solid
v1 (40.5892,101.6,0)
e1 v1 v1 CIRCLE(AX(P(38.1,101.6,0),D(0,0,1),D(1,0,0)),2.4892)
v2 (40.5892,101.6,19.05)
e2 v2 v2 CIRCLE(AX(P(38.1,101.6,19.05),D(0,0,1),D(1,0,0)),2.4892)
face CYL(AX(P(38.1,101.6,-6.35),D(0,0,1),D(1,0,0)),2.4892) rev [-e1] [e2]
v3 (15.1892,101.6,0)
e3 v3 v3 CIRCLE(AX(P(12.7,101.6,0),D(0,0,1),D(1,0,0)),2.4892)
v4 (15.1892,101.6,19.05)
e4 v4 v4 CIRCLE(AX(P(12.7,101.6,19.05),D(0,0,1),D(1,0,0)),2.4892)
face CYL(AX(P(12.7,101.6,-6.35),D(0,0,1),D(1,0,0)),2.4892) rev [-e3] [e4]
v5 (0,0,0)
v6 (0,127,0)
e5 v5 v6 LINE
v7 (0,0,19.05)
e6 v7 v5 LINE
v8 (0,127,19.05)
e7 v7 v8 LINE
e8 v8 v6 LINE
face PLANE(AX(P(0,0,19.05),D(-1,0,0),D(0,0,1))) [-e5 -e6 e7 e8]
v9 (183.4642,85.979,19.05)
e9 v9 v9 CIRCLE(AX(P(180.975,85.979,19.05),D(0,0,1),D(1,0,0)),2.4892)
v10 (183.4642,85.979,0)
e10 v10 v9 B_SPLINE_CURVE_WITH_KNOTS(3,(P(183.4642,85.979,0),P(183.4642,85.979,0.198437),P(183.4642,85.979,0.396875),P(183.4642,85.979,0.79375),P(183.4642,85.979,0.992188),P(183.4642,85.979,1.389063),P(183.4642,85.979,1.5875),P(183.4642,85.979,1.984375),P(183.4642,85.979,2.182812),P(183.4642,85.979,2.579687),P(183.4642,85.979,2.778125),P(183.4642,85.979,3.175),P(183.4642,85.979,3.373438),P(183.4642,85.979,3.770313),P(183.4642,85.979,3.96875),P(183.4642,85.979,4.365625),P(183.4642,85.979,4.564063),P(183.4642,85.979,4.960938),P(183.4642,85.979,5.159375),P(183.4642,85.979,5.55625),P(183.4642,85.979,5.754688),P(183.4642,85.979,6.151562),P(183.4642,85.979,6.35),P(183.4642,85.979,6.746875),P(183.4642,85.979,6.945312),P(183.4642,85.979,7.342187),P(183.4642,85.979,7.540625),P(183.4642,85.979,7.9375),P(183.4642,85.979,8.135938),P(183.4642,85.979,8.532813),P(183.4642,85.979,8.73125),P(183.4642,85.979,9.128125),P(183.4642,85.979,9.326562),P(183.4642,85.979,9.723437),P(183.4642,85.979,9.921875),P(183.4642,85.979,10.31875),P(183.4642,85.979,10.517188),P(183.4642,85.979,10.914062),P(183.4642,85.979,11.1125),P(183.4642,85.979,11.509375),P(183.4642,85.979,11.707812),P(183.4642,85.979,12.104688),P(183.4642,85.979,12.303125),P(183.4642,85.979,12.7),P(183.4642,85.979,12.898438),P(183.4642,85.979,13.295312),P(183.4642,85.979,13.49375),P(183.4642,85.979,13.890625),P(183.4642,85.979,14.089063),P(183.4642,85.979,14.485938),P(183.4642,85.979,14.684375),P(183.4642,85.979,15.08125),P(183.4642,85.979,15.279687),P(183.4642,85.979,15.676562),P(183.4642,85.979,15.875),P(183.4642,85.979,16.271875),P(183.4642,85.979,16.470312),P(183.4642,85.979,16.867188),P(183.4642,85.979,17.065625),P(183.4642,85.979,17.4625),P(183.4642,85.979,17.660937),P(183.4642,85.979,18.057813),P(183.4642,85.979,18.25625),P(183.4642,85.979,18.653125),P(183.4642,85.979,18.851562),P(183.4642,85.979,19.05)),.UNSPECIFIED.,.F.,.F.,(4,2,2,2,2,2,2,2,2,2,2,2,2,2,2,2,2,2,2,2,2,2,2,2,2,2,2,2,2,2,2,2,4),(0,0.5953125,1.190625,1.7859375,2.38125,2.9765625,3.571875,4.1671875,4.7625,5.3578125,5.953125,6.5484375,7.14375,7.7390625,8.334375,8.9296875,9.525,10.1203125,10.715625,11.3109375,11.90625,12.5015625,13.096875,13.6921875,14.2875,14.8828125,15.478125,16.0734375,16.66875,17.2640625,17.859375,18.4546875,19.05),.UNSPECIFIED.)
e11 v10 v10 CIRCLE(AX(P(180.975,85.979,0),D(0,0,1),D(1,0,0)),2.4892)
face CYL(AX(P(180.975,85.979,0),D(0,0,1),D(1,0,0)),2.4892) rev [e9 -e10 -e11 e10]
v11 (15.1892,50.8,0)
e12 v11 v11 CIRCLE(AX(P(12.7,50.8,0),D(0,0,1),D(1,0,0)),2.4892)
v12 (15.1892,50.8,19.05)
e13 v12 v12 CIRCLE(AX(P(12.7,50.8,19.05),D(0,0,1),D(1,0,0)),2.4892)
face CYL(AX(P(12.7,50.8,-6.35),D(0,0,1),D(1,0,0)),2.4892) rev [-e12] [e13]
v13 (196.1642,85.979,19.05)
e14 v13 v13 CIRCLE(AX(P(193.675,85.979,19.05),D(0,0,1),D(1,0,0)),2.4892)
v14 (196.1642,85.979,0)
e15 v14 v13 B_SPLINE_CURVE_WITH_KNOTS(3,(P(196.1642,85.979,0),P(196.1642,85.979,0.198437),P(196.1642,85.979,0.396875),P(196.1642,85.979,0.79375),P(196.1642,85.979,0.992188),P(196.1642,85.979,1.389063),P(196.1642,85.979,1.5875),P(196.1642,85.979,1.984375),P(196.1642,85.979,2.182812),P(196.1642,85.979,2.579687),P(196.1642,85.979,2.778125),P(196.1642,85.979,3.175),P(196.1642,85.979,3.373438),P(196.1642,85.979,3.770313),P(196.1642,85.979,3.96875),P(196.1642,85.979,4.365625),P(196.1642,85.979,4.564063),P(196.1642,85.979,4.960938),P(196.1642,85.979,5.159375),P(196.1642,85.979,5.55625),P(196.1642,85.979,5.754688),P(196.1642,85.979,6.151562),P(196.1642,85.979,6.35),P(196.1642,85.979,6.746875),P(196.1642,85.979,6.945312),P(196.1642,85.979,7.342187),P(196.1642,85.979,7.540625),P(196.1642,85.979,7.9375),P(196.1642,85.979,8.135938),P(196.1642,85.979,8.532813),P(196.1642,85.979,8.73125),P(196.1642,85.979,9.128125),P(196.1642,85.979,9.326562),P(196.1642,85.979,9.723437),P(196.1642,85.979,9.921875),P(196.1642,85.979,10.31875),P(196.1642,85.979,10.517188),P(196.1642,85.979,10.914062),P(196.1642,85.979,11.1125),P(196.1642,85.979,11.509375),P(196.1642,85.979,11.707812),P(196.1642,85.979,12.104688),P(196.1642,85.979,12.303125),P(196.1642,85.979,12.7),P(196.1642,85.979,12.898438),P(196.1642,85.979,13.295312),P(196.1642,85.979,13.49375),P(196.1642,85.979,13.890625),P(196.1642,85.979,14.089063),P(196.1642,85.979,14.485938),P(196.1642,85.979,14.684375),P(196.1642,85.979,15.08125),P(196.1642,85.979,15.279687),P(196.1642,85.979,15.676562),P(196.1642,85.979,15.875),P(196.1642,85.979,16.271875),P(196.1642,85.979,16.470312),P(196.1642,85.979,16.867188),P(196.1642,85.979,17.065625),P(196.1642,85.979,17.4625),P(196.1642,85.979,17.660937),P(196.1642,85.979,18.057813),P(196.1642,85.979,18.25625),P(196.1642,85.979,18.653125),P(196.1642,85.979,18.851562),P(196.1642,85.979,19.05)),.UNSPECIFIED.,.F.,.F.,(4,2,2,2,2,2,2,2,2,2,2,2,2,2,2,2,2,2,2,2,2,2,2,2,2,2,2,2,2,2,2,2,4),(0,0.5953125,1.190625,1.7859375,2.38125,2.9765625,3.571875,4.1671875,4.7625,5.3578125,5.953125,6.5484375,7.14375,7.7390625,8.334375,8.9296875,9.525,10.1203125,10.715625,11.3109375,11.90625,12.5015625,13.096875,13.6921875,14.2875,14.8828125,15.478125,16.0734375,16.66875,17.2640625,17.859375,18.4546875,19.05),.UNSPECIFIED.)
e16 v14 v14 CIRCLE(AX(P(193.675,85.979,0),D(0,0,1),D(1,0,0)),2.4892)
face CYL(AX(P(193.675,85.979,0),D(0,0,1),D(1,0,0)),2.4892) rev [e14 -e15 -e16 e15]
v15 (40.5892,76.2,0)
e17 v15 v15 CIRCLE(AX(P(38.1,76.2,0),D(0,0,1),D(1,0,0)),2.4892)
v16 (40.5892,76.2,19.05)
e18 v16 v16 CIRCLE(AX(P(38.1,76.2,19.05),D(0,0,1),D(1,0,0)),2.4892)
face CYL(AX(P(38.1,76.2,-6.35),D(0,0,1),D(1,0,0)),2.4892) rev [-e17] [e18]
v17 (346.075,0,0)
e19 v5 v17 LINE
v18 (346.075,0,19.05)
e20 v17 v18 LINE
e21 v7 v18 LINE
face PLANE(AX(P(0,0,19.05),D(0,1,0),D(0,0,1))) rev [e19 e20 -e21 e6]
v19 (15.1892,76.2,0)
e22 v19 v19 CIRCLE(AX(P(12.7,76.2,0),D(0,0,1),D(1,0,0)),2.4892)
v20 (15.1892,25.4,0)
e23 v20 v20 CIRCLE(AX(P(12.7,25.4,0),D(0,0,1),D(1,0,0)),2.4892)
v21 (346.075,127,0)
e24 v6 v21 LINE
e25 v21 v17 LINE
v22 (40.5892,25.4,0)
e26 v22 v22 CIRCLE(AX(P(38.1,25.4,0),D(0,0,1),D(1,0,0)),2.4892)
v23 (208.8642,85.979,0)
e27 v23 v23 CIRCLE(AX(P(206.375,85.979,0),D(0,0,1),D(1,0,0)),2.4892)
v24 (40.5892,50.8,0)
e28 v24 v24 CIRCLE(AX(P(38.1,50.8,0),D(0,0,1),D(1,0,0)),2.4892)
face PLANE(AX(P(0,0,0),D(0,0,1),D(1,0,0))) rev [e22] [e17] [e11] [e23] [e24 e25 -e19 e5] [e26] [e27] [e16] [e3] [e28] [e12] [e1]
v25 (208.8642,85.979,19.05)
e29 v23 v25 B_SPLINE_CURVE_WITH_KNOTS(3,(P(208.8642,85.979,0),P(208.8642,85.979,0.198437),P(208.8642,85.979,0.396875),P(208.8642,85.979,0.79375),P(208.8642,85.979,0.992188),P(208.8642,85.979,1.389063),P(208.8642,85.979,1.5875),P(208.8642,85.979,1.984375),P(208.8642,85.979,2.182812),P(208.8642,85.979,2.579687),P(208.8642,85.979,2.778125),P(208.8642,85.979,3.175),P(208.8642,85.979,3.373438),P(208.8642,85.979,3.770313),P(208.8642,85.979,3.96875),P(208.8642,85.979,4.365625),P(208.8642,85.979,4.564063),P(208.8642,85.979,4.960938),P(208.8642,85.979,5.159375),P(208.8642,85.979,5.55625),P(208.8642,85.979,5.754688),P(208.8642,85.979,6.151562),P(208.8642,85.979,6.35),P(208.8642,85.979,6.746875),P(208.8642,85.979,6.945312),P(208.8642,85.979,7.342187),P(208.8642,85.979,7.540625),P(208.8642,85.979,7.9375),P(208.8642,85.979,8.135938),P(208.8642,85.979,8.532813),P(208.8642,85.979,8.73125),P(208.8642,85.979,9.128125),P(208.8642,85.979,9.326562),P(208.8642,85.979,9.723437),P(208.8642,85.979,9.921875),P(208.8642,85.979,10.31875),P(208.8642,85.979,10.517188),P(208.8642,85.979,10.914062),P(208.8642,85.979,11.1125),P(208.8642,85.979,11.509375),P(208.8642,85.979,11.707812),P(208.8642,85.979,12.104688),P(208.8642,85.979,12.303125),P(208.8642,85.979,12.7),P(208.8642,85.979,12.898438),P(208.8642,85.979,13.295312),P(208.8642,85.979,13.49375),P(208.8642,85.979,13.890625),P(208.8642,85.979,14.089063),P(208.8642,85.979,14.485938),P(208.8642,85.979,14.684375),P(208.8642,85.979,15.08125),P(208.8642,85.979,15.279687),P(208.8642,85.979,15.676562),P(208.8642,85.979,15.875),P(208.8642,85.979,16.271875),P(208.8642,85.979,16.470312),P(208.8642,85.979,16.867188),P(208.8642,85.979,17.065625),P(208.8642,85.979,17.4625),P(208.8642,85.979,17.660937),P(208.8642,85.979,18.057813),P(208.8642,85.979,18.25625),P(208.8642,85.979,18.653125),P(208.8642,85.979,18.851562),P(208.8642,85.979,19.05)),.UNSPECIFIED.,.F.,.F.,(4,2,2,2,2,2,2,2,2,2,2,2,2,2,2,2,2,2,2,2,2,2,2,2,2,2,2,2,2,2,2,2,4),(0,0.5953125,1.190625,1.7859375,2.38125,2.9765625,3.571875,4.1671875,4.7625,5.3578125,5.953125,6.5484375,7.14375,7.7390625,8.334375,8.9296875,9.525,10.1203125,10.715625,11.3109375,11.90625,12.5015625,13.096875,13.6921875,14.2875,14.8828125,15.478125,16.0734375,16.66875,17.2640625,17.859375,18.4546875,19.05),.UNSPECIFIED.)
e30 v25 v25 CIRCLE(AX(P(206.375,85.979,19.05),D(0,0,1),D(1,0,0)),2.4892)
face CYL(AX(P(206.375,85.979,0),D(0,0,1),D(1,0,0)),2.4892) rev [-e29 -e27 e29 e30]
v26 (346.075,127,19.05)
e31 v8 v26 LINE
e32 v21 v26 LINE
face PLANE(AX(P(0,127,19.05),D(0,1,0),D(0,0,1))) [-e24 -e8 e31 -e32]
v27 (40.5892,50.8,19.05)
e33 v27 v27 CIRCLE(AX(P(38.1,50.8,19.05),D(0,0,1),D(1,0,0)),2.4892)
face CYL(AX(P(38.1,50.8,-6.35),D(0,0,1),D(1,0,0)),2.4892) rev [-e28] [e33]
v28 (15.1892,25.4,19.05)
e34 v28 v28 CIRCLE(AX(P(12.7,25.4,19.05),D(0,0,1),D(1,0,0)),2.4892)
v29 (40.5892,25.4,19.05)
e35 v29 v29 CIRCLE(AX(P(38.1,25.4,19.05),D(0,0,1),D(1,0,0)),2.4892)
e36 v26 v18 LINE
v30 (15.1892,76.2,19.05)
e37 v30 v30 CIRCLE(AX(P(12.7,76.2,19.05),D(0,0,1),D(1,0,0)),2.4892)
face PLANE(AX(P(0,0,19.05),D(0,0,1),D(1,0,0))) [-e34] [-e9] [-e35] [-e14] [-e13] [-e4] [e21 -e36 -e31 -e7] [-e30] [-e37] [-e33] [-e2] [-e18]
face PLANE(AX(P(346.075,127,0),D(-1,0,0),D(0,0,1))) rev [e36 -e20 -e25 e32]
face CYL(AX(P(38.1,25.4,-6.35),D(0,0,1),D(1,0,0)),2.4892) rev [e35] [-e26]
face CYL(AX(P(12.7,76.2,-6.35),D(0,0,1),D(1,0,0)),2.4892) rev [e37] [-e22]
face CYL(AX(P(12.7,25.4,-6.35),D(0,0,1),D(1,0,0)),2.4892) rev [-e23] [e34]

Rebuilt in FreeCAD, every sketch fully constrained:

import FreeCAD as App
import Part
import Sketcher
from FreeCAD import Vector
Q = App.Units.Quantity


def add_polygon(sketch, points):
    """Adds a closed chain of lines whose ends are joined by coincident constraints."""
    first, n = sketch.GeometryCount, len(points)
    for a, b in zip(points, points[1:] + points[:1]):
        sketch.addGeometry(Part.LineSegment(App.Vector(*a, 0), App.Vector(*b, 0)), False)
    for i in range(n):
        sketch.addConstraint(Sketcher.Constraint("Coincident", first + i, 2, first + (i + 1) % n, 1))

doc = App.newDocument("Part")
params = doc.addObject("Spreadsheet::Sheet", "Params")
for row, (alias, value) in enumerate([
    ("sketch1_height", "5 in"),
    ("sketch1_width", "28.25 in"),
    ("pad1_length", "0.75 in"),
    ("sketch2_diameter", "0.196 in"),
    ("pocket1_length", "1 in"),
    ("sketch3_diameter", "0.196 in"),
    ("sketch4_height", "5 in"),
    ("sketch4_width", "14.625 in"),
], start=1):
    params.set(f"A{row}", alias)
    params.set(f"B{row}", "=" + value)
    params.setAlias(f"B{row}", alias)

body = doc.addObject("PartDesign::Body", "Body")

sketch1 = doc.addObject("Sketcher::SketchObject", "Sketch")
body.addObject(sketch1)
sketch1.AttachmentSupport = (doc.XY_Plane, [""])
sketch1.MapMode = "FlatFace"
add_polygon(sketch1, [(0, 127), (0, 0), (718, 0), (718, 127)])
sketch1.addConstraint([
    Sketcher.Constraint("Vertical", 0),
    Sketcher.Constraint("Horizontal", 1),
    Sketcher.Constraint("Vertical", 2),
    Sketcher.Constraint("Horizontal", 3),
    Sketcher.Constraint("Coincident", 0, 2, -1, 1),
    Sketcher.Constraint("DistanceY", 0, 2, 0, 1, Q("5 in")),
    Sketcher.Constraint("DistanceX", 1, 1, 1, 2, Q("28.25 in")),
])
sketch1.setExpression("Constraints[9]", "Params.sketch1_height")
sketch1.setExpression("Constraints[10]", "Params.sketch1_width")
pad1 = doc.addObject("PartDesign::Pad", "Pad")
body.addObject(pad1)
pad1.Profile = sketch1
pad1.setExpression("Length", "Params.pad1_length")

sketch2 = doc.addObject("Sketcher::SketchObject", "Sketch001")
body.addObject(sketch2)
sketch2.AttachmentSupport = (doc.XY_Plane, [""])
sketch2.MapMode = "FlatFace"
sketch2.AttachmentOffset = App.Placement(Vector(0, 0, 0.75 * 25.4), App.Rotation())
sketch2.addGeometry([
    Part.Circle(Vector(12.7, 101.6, 0), Vector(0, 0, 1), 2.5),
    Part.Circle(Vector(38.1, 101.6, 0), Vector(0, 0, 1), 2.5),
    Part.Circle(Vector(38.1, 76.2, 0), Vector(0, 0, 1), 2.5),
    Part.Circle(Vector(38.1, 50.8, 0), Vector(0, 0, 1), 2.5),
    Part.Circle(Vector(38.1, 25.4, 0), Vector(0, 0, 1), 2.5),
    Part.Circle(Vector(12.7, 76.2, 0), Vector(0, 0, 1), 2.5),
    Part.Circle(Vector(12.7, 50.8, 0), Vector(0, 0, 1), 2.5),
    Part.Circle(Vector(12.7, 25.4, 0), Vector(0, 0, 1), 2.5),
    Part.Circle(Vector(685.8, 101.6, 0), Vector(0, 0, 1), 2.5),
    Part.Circle(Vector(660.4, 101.6, 0), Vector(0, 0, 1), 2.5),
    Part.Circle(Vector(660.4, 76.2, 0), Vector(0, 0, 1), 2.5),
    Part.Circle(Vector(660.4, 50.8, 0), Vector(0, 0, 1), 2.5),
    Part.Circle(Vector(660.4, 25.4, 0), Vector(0, 0, 1), 2.5),
    Part.Circle(Vector(685.8, 76.2, 0), Vector(0, 0, 1), 2.5),
    Part.Circle(Vector(685.8, 50.8, 0), Vector(0, 0, 1), 2.5),
    Part.Circle(Vector(685.8, 25.4, 0), Vector(0, 0, 1), 2.5),
], False)
sketch2.addConstraint([
    Sketcher.Constraint("Equal", 0, 1),
    Sketcher.Constraint("Equal", 1, 2),
    Sketcher.Constraint("Equal", 2, 3),
    Sketcher.Constraint("Equal", 3, 4),
    Sketcher.Constraint("Equal", 4, 5),
    Sketcher.Constraint("Equal", 5, 6),
    Sketcher.Constraint("Equal", 6, 7),
    Sketcher.Constraint("Equal", 7, 8),
    Sketcher.Constraint("Equal", 8, 9),
    Sketcher.Constraint("Equal", 9, 10),
    Sketcher.Constraint("Equal", 10, 11),
    Sketcher.Constraint("Equal", 11, 12),
    Sketcher.Constraint("Equal", 12, 13),
    Sketcher.Constraint("Equal", 13, 14),
    Sketcher.Constraint("Equal", 14, 15),
    Sketcher.Constraint("Horizontal", 0, 3, 1, 3),
    Sketcher.Constraint("Horizontal", 2, 3, 5, 3),
    Sketcher.Constraint("Horizontal", 3, 3, 6, 3),
    Sketcher.Constraint("Horizontal", 4, 3, 7, 3),
    Sketcher.Constraint("Horizontal", 1, 3, 8, 3),
    Sketcher.Constraint("Horizontal", 8, 3, 9, 3),
    Sketcher.Constraint("Horizontal", 5, 3, 10, 3),
    Sketcher.Constraint("Horizontal", 6, 3, 11, 3),
    Sketcher.Constraint("Horizontal", 7, 3, 12, 3),
    Sketcher.Constraint("Horizontal", 10, 3, 13, 3),
    Sketcher.Constraint("Horizontal", 11, 3, 14, 3),
    Sketcher.Constraint("Horizontal", 12, 3, 15, 3),
    Sketcher.Constraint("Vertical", 1, 3, 2, 3),
    Sketcher.Constraint("Vertical", 2, 3, 3, 3),
    Sketcher.Constraint("Vertical", 3, 3, 4, 3),
    Sketcher.Constraint("Vertical", 0, 3, 5, 3),
    Sketcher.Constraint("Vertical", 5, 3, 6, 3),
    Sketcher.Constraint("Vertical", 6, 3, 7, 3),
    Sketcher.Constraint("Vertical", 9, 3, 10, 3),
    Sketcher.Constraint("Vertical", 10, 3, 11, 3),
    Sketcher.Constraint("Vertical", 11, 3, 12, 3),
    Sketcher.Constraint("Vertical", 8, 3, 13, 3),
    Sketcher.Constraint("Vertical", 13, 3, 14, 3),
    Sketcher.Constraint("Vertical", 14, 3, 15, 3),
    Sketcher.Constraint("Diameter", 0, Q("0.196 in")),
    Sketcher.Constraint("DistanceY", -1, 1, 0, 3, Q("4 in")),
    Sketcher.Constraint("DistanceY", -1, 1, 2, 3, Q("3 in")),
    Sketcher.Constraint("DistanceY", -1, 1, 3, 3, Q("2 in")),
    Sketcher.Constraint("DistanceY", -1, 1, 4, 3, Q("1 in")),
    Sketcher.Constraint("DistanceX", -1, 1, 8, 3, Q("27 in")),
    Sketcher.Constraint("DistanceX", -1, 1, 9, 3, Q("26 in")),
    Sketcher.Constraint("DistanceX", 0, 3, 1, 3, Q("1 in")),
    Sketcher.Constraint("DistanceX", -1, 1, 0, 3, Q("0.5 in")),
])
sketch2.setExpression("Constraints[39]", "Params.sketch2_diameter")
pocket1 = doc.addObject("PartDesign::Pocket", "Pocket")
body.addObject(pocket1)
pocket1.Profile = sketch2
pocket1.setExpression("Length", "Params.pocket1_length")

sketch3 = doc.addObject("Sketcher::SketchObject", "Sketch002")
body.addObject(sketch3)
sketch3.AttachmentSupport = (doc.XY_Plane, [""])
sketch3.MapMode = "FlatFace"
sketch3.AttachmentOffset = App.Placement(Vector(0, 0, 0.75 * 25.4), App.Rotation())
sketch3.addGeometry([
    Part.Circle(Vector(181, 86, 0), Vector(0, 0, 1), 2.5),
    Part.Circle(Vector(193.7, 86, 0), Vector(0, 0, 1), 2.5),
    Part.Circle(Vector(206.4, 86, 0), Vector(0, 0, 1), 2.5),
    Part.Circle(Vector(492.1, 86, 0), Vector(0, 0, 1), 2.5),
    Part.Circle(Vector(504.8, 86, 0), Vector(0, 0, 1), 2.5),
    Part.Circle(Vector(517.5, 86, 0), Vector(0, 0, 1), 2.5),
], False)
sketch3.addConstraint([
    Sketcher.Constraint("Equal", 0, 1),
    Sketcher.Constraint("Equal", 1, 2),
    Sketcher.Constraint("Equal", 2, 3),
    Sketcher.Constraint("Equal", 3, 4),
    Sketcher.Constraint("Equal", 4, 5),
    Sketcher.Constraint("Horizontal", 0, 3, 1, 3),
    Sketcher.Constraint("Horizontal", 1, 3, 2, 3),
    Sketcher.Constraint("Horizontal", 2, 3, 3, 3),
    Sketcher.Constraint("Horizontal", 3, 3, 4, 3),
    Sketcher.Constraint("Horizontal", 4, 3, 5, 3),
    Sketcher.Constraint("Diameter", 0, Q("0.196 in")),
    Sketcher.Constraint("DistanceX", 0, 3, 2, 3, Q("1 in")),
    Sketcher.Constraint("DistanceX", 3, 3, 5, 3, Q("1 in")),
    Sketcher.Constraint("DistanceX", 0, 3, 1, 3, Q("0.5 in")),
    Sketcher.Constraint("DistanceX", 3, 3, 4, 3, Q("0.5 in")),
    Sketcher.Constraint("DistanceX", 2, 3, 3, 3, Q("11.25 in")),
    Sketcher.Constraint("DistanceX", -1, 1, 0, 3, Q("7.125 in")),
    Sketcher.Constraint("DistanceY", -1, 1, 0, 3, Q("3.385 in")),
])
sketch3.setExpression("Constraints[10]", "Params.sketch3_diameter")
pocket2 = doc.addObject("PartDesign::Pocket", "Pocket001")
body.addObject(pocket2)
pocket2.Profile = sketch3
pocket2.Type = "ThroughAll"

sketch4 = doc.addObject("Sketcher::SketchObject", "Sketch003")
body.addObject(sketch4)
sketch4.AttachmentSupport = (doc.XY_Plane, [""])
sketch4.MapMode = "FlatFace"
sketch4.AttachmentOffset = App.Placement(Vector(0, 0, 0.75 * 25.4), App.Rotation())
add_polygon(sketch4, [(346, 127), (346, 0), (718, 0), (718, 127)])
sketch4.addConstraint([
    Sketcher.Constraint("Vertical", 0),
    Sketcher.Constraint("Horizontal", 1),
    Sketcher.Constraint("Vertical", 2),
    Sketcher.Constraint("Horizontal", 3),
    Sketcher.Constraint("PointOnObject", 0, 2, -1),
    Sketcher.Constraint("DistanceY", 0, 2, 0, 1, Q("5 in")),
    Sketcher.Constraint("DistanceX", 1, 1, 1, 2, Q("14.625 in")),
    Sketcher.Constraint("DistanceX", -1, 1, 1, 2, Q("28.25 in")),
])
sketch4.setExpression("Constraints[9]", "Params.sketch4_height")
sketch4.setExpression("Constraints[10]", "Params.sketch4_width")
pocket3 = doc.addObject("PartDesign::Pocket", "Pocket002")
body.addObject(pocket3)
pocket3.Profile = sketch4
pocket3.Type = "ThroughAll"

doc.recompute()
